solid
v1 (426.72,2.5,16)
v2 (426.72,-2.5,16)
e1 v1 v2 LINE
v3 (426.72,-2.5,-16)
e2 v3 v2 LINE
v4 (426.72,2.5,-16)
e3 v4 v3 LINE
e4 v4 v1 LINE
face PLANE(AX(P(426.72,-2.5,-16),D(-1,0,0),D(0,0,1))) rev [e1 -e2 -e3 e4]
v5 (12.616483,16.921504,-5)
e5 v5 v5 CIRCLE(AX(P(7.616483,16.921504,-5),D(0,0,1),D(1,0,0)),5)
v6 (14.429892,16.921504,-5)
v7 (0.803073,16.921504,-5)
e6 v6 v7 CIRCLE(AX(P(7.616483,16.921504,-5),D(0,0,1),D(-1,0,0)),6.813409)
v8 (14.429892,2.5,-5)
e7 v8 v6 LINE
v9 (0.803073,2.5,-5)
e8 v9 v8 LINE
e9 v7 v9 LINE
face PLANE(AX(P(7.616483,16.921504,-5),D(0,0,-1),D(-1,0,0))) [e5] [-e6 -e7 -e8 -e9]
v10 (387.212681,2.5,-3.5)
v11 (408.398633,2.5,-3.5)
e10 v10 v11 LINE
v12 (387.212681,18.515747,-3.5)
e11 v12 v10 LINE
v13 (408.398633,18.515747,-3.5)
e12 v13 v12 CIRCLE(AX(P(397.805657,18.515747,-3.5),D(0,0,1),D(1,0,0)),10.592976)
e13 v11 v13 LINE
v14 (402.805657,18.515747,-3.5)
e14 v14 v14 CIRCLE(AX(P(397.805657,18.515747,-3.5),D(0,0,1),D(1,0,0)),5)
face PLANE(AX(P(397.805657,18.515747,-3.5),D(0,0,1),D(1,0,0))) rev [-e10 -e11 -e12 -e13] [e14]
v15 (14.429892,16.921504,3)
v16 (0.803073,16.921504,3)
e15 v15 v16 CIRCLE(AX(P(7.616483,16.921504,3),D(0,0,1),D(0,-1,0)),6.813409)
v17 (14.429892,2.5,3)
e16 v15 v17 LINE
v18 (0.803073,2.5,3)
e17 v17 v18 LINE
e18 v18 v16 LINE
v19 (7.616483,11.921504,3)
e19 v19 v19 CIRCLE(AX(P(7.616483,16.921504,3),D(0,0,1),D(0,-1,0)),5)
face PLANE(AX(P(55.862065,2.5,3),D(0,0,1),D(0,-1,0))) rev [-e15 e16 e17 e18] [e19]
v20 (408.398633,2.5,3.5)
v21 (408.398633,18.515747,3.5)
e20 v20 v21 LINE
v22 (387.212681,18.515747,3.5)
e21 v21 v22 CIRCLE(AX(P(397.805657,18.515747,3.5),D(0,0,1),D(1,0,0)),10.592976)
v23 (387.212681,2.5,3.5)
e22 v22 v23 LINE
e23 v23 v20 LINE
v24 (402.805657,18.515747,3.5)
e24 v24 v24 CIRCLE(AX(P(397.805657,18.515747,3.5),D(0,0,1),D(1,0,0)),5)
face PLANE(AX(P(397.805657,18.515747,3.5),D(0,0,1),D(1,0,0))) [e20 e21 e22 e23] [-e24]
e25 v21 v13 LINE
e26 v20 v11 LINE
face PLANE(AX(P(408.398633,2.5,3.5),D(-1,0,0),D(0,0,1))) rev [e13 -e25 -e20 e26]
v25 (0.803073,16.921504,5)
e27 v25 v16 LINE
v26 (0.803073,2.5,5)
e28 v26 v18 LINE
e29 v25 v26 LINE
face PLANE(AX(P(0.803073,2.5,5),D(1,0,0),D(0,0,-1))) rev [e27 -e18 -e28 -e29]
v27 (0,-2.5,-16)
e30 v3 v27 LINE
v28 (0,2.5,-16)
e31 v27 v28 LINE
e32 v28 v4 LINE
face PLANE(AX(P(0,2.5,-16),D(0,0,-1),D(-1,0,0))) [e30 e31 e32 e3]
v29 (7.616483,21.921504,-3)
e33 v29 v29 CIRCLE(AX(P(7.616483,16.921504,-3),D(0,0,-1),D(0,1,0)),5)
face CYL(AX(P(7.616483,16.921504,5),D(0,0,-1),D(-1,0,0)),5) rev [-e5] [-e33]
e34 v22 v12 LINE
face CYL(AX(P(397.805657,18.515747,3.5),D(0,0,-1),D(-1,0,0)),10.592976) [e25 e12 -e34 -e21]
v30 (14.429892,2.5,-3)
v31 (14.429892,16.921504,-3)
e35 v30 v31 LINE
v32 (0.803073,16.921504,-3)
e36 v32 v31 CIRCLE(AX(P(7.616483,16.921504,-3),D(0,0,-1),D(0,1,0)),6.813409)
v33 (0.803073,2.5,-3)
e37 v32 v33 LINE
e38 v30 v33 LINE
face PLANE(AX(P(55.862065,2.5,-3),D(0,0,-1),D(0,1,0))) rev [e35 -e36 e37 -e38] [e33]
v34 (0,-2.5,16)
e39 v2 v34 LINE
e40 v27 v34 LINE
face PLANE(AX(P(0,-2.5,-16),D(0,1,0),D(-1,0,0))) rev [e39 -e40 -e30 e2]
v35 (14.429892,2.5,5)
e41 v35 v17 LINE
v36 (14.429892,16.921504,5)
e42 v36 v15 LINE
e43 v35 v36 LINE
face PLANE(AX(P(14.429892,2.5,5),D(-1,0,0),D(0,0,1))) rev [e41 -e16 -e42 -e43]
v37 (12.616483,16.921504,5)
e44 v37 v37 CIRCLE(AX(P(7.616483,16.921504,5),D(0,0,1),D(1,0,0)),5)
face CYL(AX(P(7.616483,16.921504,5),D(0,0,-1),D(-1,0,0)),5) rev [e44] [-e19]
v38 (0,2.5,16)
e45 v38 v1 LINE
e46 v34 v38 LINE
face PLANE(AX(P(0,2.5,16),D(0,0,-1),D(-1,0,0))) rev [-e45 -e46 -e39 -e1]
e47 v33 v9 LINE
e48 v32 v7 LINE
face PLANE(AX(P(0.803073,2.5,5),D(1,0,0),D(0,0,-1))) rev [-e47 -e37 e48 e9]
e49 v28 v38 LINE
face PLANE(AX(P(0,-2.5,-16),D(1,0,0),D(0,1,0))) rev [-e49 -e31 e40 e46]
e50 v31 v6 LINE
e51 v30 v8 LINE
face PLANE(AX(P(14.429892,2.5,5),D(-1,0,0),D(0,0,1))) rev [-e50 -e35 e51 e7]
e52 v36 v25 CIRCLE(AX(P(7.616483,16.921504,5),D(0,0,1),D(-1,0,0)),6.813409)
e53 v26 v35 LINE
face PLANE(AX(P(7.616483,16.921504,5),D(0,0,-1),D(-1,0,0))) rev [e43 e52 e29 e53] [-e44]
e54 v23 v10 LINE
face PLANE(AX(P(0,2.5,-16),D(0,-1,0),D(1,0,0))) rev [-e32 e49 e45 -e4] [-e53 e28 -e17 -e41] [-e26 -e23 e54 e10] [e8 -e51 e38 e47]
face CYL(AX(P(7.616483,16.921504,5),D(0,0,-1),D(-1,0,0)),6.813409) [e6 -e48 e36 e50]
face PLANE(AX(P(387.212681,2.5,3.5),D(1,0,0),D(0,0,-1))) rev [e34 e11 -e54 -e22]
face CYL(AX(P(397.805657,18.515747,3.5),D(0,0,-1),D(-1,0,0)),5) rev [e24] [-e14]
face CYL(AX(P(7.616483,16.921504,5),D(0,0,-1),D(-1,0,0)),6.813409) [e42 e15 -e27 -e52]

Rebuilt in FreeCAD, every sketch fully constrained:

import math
import FreeCAD as App
import Part
import Sketcher

V = App.Vector
Q = App.Units.Quantity


def add_polygon(sketch, points):
    """Adds a closed chain of lines whose ends are joined by coincident constraints."""
    first, n = sketch.GeometryCount, len(points)
    for a, b in zip(points, points[1:] + points[:1]):
        sketch.addGeometry(Part.LineSegment(App.Vector(*a, 0), App.Vector(*b, 0)), False)
    for i in range(n):
        sketch.addConstraint(Sketcher.Constraint("Coincident", first + i, 2, first + (i + 1) % n, 1))

doc = App.newDocument("Part")
body = doc.addObject("PartDesign::Body", "Body")

# Sketch on XY plane
sketch1 = body.newObject("Sketcher::SketchObject", "Sketch")
sketch1.AttachmentSupport = (doc.getObject("XY_Plane"), [""])
sketch1.MapMode = "FlatFace"
add_polygon(sketch1, [(0, -2), (0, 2), (427, 2), (427, -2)])  # lines 0-3
sketch1.addConstraint(Sketcher.Constraint("Vertical", 0))
sketch1.addConstraint(Sketcher.Constraint("Horizontal", 1))
sketch1.addConstraint(Sketcher.Constraint("Vertical", 2))
sketch1.addConstraint(Sketcher.Constraint("Horizontal", 3))
sketch1.addConstraint(Sketcher.Constraint("Symmetric", 0, 2, 3, 2, -1, 1))
sketch1.addConstraint(Sketcher.Constraint("DistanceY", 0, 1, 0, 2, Q("5 mm")))
sketch1.addConstraint(Sketcher.Constraint("DistanceX", 1, 1, 1, 2, Q("426.72 mm")))
pad1 = body.newObject("PartDesign::Pad", "Pad")
pad1.Profile = sketch1
pad1.Length = 32
pad1.Midplane = True

# Sketch on XY plane
sketch2 = body.newObject("Sketcher::SketchObject", "Sketch001")
sketch2.AttachmentSupport = (doc.getObject("XY_Plane"), [""])
sketch2.MapMode = "FlatFace"
sketch2.addGeometry(Part.LineSegment(V(1, 17, 0), V(1, 2, 0)), False)
sketch2.addGeometry(Part.LineSegment(V(1, 2, 0), V(14, 2, 0)), False)
sketch2.addGeometry(Part.LineSegment(V(14, 2, 0), V(14, 17, 0)), False)
sketch2.addGeometry(Part.ArcOfCircle(Part.Circle(V(8, 17, 0), V(0, 0, 1), 7), math.radians(0), math.radians(180)), False)
sketch2.addGeometry(Part.Circle(V(8, 17, 0), V(0, 0, 1), 5), False)
sketch2.addConstraint(Sketcher.Constraint("Coincident", 0, 2, 1, 1))
sketch2.addConstraint(Sketcher.Constraint("Coincident", 1, 2, 2, 1))
sketch2.addConstraint(Sketcher.Constraint("Tangent", 2, 2, 3, 1))
sketch2.addConstraint(Sketcher.Constraint("Tangent", 3, 2, 0, 1))
sketch2.addConstraint(Sketcher.Constraint("Vertical", 0))
sketch2.addConstraint(Sketcher.Constraint("Horizontal", 1))
sketch2.addConstraint(Sketcher.Constraint("Vertical", 2))
sketch2.addConstraint(Sketcher.Constraint("Coincident", 4, 3, 3, 3))
sketch2.addConstraint(Sketcher.Constraint("Diameter", 4, Q("10 mm")))
sketch2.addConstraint(Sketcher.Constraint("DistanceY", -1, 1, 0, 2, Q("2.5 mm")))
sketch2.addConstraint(Sketcher.Constraint("Radius", 3, Q("6.813409 mm")))
sketch2.addConstraint(Sketcher.Constraint("DistanceY", 0, 2, 0, 1, Q("14.421504 mm")))
sketch2.addConstraint(Sketcher.Constraint("DistanceX", -1, 1, 3, 3, Q("7.616483 mm")))
pad2 = body.newObject("PartDesign::Pad", "Pad001")
pad2.Profile = sketch2
pad2.Length = 10
pad2.Midplane = True

# Sketch on YZ plane
sketch3 = body.newObject("Sketcher::SketchObject", "Sketch002")
sketch3.AttachmentSupport = (doc.getObject("YZ_Plane"), [""])
sketch3.MapMode = "FlatFace"
sketch3.AttachmentOffset = App.Placement(V(0, 0, 0.803073), App.Rotation())
add_polygon(sketch3, [(43, -3), (3, -3), (3, 3), (43, 3)])  # lines 0-3
sketch3.addConstraint(Sketcher.Constraint("Horizontal", 0))
sketch3.addConstraint(Sketcher.Constraint("Vertical", 1))
sketch3.addConstraint(Sketcher.Constraint("Horizontal", 2))
sketch3.addConstraint(Sketcher.Constraint("Vertical", 3))
sketch3.addConstraint(Sketcher.Constraint("DistanceY", 1, 1, 1, 2, Q("6 mm")))
sketch3.addConstraint(Sketcher.Constraint("DistanceY", 0, 2, -1, 1, Q("3 mm")))
sketch3.addConstraint(Sketcher.Constraint("DistanceX", -1, 1, 0, 2, Q("2.5 mm")))
sketch3.addConstraint(Sketcher.Constraint("DistanceX", 0, 2, 0, 1, Q("40.995426 mm")))
pocket1 = body.newObject("PartDesign::Pocket", "Pocket")
pocket1.Profile = sketch3
pocket1.Length = 13.626819
pocket1.Reversed = True

# Sketch on XY plane
sketch4 = body.newObject("Sketcher::SketchObject", "Sketch003")
sketch4.AttachmentSupport = (doc.getObject("XY_Plane"), [""])
sketch4.MapMode = "FlatFace"
sketch4.addGeometry(Part.LineSegment(V(408, 2, 0), V(408, 19, 0)), False)
sketch4.addGeometry(Part.ArcOfCircle(Part.Circle(V(398, 19, 0), V(0, 0, 1), 11), math.radians(0), math.radians(180)), False)
sketch4.addGeometry(Part.LineSegment(V(387, 19, 0), V(387, 2, 0)), False)
sketch4.addGeometry(Part.LineSegment(V(387, 2, 0), V(408, 2, 0)), False)
sketch4.addGeometry(Part.Circle(V(398, 19, 0), V(0, 0, 1), 5), False)
sketch4.addConstraint(Sketcher.Constraint("Tangent", 0, 2, 1, 1))
sketch4.addConstraint(Sketcher.Constraint("Tangent", 1, 2, 2, 1))
sketch4.addConstraint(Sketcher.Constraint("Coincident", 2, 2, 3, 1))
sketch4.addConstraint(Sketcher.Constraint("Coincident", 3, 2, 0, 1))
sketch4.addConstraint(Sketcher.Constraint("Vertical", 0))
sketch4.addConstraint(Sketcher.Constraint("Vertical", 2))
sketch4.addConstraint(Sketcher.Constraint("Horizontal", 3))
sketch4.addConstraint(Sketcher.Constraint("Coincident", 4, 3, 1, 3))
sketch4.addConstraint(Sketcher.Constraint("Diameter", 4, Q("10 mm")))
sketch4.addConstraint(Sketcher.Constraint("DistanceY", -1, 1, 2, 2, Q("2.5 mm")))
sketch4.addConstraint(Sketcher.Constraint("Radius", 1, Q("10.592976 mm")))
sketch4.addConstraint(Sketcher.Constraint("DistanceY", 0, 1, 0, 2, Q("16.015747 mm")))
sketch4.addConstraint(Sketcher.Constraint("DistanceX", -1, 1, 1, 2, Q("387.212681 mm")))
pad3 = body.newObject("PartDesign::Pad", "Pad002")
pad3.Profile = sketch4
pad3.Length = 7
pad3.Midplane = True

doc.recompute()
